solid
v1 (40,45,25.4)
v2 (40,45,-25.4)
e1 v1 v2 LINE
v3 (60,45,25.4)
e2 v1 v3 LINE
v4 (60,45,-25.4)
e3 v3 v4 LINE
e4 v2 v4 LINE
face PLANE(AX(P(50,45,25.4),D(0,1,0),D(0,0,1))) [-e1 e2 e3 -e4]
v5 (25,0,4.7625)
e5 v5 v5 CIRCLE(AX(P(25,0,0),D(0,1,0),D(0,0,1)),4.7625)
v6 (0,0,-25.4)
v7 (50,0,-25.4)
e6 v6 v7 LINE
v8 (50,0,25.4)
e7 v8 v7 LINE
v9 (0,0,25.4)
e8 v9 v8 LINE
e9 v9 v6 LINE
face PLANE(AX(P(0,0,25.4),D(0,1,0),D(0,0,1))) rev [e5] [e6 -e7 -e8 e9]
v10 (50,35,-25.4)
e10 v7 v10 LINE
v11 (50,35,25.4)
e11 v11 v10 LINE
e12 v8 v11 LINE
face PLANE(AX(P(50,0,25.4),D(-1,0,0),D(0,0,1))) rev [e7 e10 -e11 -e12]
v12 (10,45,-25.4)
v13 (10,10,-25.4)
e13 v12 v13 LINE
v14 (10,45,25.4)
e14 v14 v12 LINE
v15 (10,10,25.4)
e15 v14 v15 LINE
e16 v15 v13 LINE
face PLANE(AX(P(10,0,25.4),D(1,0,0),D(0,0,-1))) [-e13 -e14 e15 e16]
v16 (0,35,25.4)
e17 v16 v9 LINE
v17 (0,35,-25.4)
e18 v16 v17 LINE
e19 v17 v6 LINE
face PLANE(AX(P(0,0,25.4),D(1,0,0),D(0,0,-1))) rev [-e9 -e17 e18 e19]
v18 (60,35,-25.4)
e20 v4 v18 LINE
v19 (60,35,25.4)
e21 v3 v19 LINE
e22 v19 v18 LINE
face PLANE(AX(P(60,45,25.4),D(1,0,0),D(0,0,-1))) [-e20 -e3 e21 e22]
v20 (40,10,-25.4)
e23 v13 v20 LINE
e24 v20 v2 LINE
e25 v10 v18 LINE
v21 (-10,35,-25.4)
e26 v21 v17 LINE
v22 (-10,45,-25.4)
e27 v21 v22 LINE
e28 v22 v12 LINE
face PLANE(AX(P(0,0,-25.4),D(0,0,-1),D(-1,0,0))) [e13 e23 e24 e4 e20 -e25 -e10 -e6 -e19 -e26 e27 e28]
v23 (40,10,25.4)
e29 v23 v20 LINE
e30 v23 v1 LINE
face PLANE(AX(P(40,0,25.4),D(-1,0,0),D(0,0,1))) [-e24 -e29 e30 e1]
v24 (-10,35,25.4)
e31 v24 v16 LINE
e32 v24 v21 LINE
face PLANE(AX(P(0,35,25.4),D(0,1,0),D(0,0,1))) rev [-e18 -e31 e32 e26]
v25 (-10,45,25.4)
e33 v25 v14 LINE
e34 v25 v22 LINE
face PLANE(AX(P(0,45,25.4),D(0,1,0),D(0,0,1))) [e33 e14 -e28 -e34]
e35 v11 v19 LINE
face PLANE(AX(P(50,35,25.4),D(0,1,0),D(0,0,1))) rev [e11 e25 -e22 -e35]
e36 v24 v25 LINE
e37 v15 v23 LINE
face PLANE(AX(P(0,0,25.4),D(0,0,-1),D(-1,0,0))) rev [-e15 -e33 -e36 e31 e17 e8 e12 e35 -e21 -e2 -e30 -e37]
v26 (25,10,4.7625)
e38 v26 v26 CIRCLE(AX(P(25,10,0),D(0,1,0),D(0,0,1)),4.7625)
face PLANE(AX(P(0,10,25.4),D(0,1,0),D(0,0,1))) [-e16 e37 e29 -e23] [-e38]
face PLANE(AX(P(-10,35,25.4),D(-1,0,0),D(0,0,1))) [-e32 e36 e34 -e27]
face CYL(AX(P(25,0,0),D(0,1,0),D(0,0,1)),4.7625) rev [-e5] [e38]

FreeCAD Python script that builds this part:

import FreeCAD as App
import Part
import Sketcher

V = App.Vector


def add_polygon(sketch, points):
    """Adds a closed chain of lines whose ends are joined by coincident constraints."""
    first, n = sketch.GeometryCount, len(points)
    for a, b in zip(points, points[1:] + points[:1]):
        sketch.addGeometry(Part.LineSegment(App.Vector(*a, 0), App.Vector(*b, 0)), False)
    for i in range(n):
        sketch.addConstraint(Sketcher.Constraint("Coincident", first + i, 2, first + (i + 1) % n, 1))

doc = App.newDocument("Part")
params = doc.addObject("Spreadsheet::Sheet", "Params")
for row, (alias, value) in enumerate([
    ("sketch1_width", "10 mm"),
    ("sketch1_width2", "50 mm"),
    ("sketch1_width3", "20 mm"),
    ("sketch1_height", "35 mm"),
    ("pad1_length", "50.8 mm"),
], start=1):
    params.set(f"A{row}", alias)
    params.set(f"B{row}", "=" + value)
    params.setAlias(f"B{row}", alias)

body = doc.addObject("PartDesign::Body", "Body")

# Sketch on XY plane
sketch1 = body.newObject("Sketcher::SketchObject", "Sketch")
sketch1.AttachmentSupport = (doc.getObject("XY_Plane"), [""])
sketch1.MapMode = "FlatFace"
add_polygon(sketch1, [(-10, 35), (0, 35), (0, 0), (50, 0), (50, 35), (60, 35), (60, 45), (40, 45), (40, 10), (10, 10), (10, 45), (-10, 45)])  # lines 0-11
sketch1.addConstraint(Sketcher.Constraint("Horizontal", 0))
sketch1.addConstraint(Sketcher.Constraint("Vertical", 1))
sketch1.addConstraint(Sketcher.Constraint("Horizontal", 2))
sketch1.addConstraint(Sketcher.Constraint("Vertical", 3))
sketch1.addConstraint(Sketcher.Constraint("Horizontal", 4))
sketch1.addConstraint(Sketcher.Constraint("Vertical", 5))
sketch1.addConstraint(Sketcher.Constraint("Horizontal", 6))
sketch1.addConstraint(Sketcher.Constraint("Vertical", 7))
sketch1.addConstraint(Sketcher.Constraint("Horizontal", 8))
sketch1.addConstraint(Sketcher.Constraint("Vertical", 9))
sketch1.addConstraint(Sketcher.Constraint("Horizontal", 10))
sketch1.addConstraint(Sketcher.Constraint("Vertical", 11))
sketch1.addConstraint(Sketcher.Constraint("Coincident", 1, 2, -1, 1))
sketch1.addConstraint(Sketcher.Constraint("Horizontal", 0, 2, 3, 2))
sketch1.addConstraint(Sketcher.Constraint("Horizontal", 6, 2, 9, 2))
sketch1.addConstraint(Sketcher.Constraint("Equal", 0, 4))
sketch1.addConstraint(Sketcher.Constraint("Equal", 6, 10))
sketch1.addConstraint(Sketcher.Constraint("Equal", 4, 5))
sketch1.addConstraint(Sketcher.Constraint("Equal", 3, 7))
sketch1.addConstraint(Sketcher.Constraint("DistanceX", 0, 1, 0, 2, 10.0))
sketch1.addConstraint(Sketcher.Constraint("DistanceX", 2, 1, 2, 2, 50.0))
sketch1.addConstraint(Sketcher.Constraint("DistanceX", 6, 2, 6, 1, 20.0))
sketch1.addConstraint(Sketcher.Constraint("DistanceY", 1, 2, 1, 1, 35.0))
sketch1.setExpression("Constraints[31]", "Params.sketch1_width")
sketch1.setExpression("Constraints[32]", "Params.sketch1_width2")
sketch1.setExpression("Constraints[33]", "Params.sketch1_width3")
sketch1.setExpression("Constraints[34]", "Params.sketch1_height")
pad1 = body.newObject("PartDesign::Pad", "Pad")
pad1.Profile = sketch1
pad1.setExpression("Length", "Params.pad1_length")
pad1.Midplane = True

# Sketch on XZ plane
sketch2 = body.newObject("Sketcher::SketchObject", "Sketch001")
sketch2.AttachmentSupport = (doc.getObject("XZ_Plane"), [""])
sketch2.MapMode = "FlatFace"
sketch2.AttachmentOffset = App.Placement(V(0, 0, -10), App.Rotation())
sketch2.addGeometry(Part.Circle(V(25, 0, 0), V(0, 0, 1), 4.8), False)
sketch2.addConstraint(Sketcher.Constraint("PointOnObject", 0, 3, -1))
sketch2.addConstraint(Sketcher.Constraint("Diameter", 0, 9.525))
sketch2.addConstraint(Sketcher.Constraint("DistanceX", -1, 1, 0, 3, 25.0))
pocket1 = body.newObject("PartDesign::Pocket", "Pocket")
pocket1.Profile = sketch2
pocket1.Type = "ThroughAll"
pocket1.Reversed = True

doc.recompute()
